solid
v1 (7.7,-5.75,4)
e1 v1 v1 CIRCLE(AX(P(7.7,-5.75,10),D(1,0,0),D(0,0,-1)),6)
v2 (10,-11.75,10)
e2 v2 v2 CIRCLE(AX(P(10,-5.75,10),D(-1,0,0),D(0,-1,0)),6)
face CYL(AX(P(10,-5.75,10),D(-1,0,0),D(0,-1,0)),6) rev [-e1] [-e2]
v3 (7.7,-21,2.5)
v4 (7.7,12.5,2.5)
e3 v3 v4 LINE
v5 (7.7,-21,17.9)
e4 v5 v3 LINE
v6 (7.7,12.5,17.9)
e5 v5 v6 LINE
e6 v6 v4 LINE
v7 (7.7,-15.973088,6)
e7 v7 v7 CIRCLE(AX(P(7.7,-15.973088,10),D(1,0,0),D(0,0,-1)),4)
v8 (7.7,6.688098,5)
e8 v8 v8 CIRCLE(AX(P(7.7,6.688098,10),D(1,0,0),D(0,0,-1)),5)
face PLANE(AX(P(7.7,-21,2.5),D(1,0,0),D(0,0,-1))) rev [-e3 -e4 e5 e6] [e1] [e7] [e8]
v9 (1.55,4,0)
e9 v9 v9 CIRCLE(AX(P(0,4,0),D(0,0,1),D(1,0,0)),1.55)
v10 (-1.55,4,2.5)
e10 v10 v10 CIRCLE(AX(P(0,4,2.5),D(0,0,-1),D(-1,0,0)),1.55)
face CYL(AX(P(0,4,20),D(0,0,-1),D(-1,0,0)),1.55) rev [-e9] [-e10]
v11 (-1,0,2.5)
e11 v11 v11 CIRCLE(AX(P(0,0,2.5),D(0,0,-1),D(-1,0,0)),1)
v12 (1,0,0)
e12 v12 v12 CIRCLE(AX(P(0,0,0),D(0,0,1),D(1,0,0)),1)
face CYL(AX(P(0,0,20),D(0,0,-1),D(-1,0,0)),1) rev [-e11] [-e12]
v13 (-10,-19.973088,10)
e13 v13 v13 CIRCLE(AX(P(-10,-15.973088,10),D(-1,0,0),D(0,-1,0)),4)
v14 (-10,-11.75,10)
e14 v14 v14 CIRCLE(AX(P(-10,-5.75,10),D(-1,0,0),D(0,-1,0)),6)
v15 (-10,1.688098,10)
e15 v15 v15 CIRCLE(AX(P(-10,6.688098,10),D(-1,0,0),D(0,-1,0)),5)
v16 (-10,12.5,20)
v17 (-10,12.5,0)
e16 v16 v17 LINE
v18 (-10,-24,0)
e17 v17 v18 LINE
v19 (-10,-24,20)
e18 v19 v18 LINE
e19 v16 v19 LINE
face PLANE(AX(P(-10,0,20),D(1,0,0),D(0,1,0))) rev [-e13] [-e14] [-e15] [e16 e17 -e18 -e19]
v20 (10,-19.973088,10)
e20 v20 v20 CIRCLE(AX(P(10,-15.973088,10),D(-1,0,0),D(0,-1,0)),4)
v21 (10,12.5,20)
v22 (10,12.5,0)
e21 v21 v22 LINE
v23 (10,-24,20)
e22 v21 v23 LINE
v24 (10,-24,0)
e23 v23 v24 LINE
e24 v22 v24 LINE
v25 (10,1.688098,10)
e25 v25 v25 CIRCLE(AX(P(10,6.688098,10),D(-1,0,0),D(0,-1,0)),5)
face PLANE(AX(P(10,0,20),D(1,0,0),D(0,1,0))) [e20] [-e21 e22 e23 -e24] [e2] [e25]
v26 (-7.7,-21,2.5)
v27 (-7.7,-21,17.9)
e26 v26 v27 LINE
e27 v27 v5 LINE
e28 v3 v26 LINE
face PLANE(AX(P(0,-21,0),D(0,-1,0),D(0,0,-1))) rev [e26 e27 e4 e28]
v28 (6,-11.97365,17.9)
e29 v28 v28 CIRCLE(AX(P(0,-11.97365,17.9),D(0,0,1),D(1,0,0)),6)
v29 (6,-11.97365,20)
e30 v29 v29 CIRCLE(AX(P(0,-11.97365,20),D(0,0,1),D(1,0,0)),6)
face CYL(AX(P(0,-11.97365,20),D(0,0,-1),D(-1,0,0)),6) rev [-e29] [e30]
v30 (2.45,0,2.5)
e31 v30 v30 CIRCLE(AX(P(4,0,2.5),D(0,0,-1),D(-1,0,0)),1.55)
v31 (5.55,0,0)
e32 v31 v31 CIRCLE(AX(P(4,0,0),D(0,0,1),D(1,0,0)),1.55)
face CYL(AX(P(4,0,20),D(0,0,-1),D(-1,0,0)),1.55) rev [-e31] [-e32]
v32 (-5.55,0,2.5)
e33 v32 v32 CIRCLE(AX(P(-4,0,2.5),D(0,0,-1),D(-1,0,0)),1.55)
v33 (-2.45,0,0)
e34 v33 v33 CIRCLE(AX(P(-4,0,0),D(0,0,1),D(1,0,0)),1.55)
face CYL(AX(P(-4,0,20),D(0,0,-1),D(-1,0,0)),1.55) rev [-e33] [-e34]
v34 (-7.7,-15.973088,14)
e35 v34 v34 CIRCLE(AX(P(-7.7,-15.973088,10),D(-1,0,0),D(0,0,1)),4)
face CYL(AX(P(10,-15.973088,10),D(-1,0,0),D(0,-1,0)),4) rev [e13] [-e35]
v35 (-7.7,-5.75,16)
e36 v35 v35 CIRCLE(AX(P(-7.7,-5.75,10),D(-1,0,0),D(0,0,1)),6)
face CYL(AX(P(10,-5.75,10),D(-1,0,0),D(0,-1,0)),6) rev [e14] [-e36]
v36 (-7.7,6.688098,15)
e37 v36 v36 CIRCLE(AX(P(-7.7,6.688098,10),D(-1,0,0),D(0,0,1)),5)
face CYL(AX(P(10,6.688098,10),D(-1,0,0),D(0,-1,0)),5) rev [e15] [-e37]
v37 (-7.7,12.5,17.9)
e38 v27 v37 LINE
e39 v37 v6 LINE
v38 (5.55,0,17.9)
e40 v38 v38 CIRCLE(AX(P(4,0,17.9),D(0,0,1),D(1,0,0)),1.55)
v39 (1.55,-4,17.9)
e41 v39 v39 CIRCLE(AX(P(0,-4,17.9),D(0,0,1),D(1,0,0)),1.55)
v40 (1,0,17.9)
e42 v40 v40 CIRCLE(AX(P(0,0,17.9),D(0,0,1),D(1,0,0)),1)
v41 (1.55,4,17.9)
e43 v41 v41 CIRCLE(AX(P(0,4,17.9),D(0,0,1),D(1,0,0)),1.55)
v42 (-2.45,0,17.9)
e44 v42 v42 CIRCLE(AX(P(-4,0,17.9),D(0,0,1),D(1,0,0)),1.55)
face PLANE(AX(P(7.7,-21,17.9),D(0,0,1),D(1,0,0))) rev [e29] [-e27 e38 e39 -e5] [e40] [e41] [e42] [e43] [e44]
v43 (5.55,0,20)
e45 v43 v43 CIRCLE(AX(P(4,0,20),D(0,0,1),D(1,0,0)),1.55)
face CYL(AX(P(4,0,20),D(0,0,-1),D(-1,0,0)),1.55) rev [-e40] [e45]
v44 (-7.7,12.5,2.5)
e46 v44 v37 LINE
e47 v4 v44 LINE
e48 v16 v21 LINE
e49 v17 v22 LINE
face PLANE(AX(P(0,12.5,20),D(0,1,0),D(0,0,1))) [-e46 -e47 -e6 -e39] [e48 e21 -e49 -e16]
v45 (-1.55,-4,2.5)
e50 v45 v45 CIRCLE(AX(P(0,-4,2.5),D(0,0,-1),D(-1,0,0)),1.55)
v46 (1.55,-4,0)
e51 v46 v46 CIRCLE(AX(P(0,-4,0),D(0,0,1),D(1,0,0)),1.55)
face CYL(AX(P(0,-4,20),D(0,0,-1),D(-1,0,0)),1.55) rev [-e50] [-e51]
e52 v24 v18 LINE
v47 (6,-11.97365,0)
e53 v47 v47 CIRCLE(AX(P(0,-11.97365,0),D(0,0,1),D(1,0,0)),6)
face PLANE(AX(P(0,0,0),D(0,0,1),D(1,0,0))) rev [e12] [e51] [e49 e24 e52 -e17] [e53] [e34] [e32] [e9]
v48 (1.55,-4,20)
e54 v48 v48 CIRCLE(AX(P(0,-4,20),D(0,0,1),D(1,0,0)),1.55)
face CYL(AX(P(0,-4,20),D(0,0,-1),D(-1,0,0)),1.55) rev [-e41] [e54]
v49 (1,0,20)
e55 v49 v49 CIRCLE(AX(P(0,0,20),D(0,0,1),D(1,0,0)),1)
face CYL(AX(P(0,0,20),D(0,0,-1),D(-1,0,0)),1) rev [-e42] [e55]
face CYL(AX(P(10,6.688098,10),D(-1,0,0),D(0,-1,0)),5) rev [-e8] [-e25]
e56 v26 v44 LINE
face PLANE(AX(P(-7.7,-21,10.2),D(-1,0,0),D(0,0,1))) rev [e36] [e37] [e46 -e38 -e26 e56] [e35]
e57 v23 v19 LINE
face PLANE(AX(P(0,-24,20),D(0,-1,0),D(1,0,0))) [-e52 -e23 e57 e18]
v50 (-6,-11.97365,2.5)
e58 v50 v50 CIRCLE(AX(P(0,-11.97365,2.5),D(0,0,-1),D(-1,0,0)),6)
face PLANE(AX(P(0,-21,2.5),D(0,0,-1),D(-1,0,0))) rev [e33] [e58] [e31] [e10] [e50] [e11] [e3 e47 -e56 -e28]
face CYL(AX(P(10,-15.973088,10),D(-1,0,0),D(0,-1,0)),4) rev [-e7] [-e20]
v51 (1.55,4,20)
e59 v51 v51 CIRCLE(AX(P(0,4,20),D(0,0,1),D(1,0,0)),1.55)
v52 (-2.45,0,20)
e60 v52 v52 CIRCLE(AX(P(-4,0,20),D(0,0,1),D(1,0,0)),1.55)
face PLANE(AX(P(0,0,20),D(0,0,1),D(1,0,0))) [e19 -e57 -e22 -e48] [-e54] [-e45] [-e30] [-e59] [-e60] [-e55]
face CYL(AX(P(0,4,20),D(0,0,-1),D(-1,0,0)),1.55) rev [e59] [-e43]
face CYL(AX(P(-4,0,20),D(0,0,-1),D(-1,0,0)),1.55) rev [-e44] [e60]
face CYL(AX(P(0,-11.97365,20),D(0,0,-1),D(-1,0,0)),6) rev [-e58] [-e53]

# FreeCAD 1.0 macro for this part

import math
import FreeCAD as App
import Part
import Sketcher

V = App.Vector
Q = App.Units.Quantity

doc = App.newDocument("Part")
params = doc.addObject("Spreadsheet::Sheet", "Params")
for row, (alias, value) in enumerate([
    ("sketch1_diameter", "12 mm"),
    ("sketch1_diameter2", "2 mm"),
    ("sketch1_diameter3", "3.1 mm"),
    ("sketch1_width", "20 mm"),
    ("sketch1_height", "36.5 mm"),
    ("pad1_length", "20 mm"),
    ("sketch2_width", "15.4 mm"),
    ("pocket1_length", "33.5 mm"),
    ("sketch3_radius", "6 mm"),
    ("sketch3_radius2", "5 mm"),
    ("sketch3_radius3", "4 mm"),
], start=1):
    params.set(f"A{row}", alias)
    params.set(f"B{row}", "=" + value)
    params.setAlias(f"B{row}", alias)

body = doc.addObject("PartDesign::Body", "Body")

sketch1 = body.newObject("Sketcher::SketchObject", "Sketch")
sketch1.AttachmentSupport = (doc.getObject("XY_Plane"), [""])
sketch1.MapMode = "FlatFace"
sketch1.addGeometry([
    Part.LineSegment(V(10, 12.5, 0), V(-10, 12.5, 0)),
    Part.LineSegment(V(-10, 12.5, 0), V(-10, -24, 0)),
    Part.LineSegment(V(-10, -24, 0), V(10, -24, 0)),
    Part.LineSegment(V(10, -24, 0), V(10, 12.5, 0)),
    Part.Circle(V(0, -12, 0), V(0, 0, 1), 6),
    Part.Circle(V(-4, 0, 0), V(0, 0, 1), 1.6),
    Part.Circle(V(0, -4, 0), V(0, 0, 1), 1.6),
    Part.Circle(V(0, 0, 0), V(0, 0, 1), 1),
    Part.Circle(V(0, 4, 0), V(0, 0, 1), 1.6),
    Part.Circle(V(4, 0, 0), V(0, 0, 1), 1.6),
], False)
sketch1.addConstraint([
    Sketcher.Constraint("Coincident", 0, 2, 1, 1),
    Sketcher.Constraint("Coincident", 1, 2, 2, 1),
    Sketcher.Constraint("Coincident", 2, 2, 3, 1),
    Sketcher.Constraint("Coincident", 3, 2, 0, 1),
    Sketcher.Constraint("Horizontal", 0),
    Sketcher.Constraint("Vertical", 1),
    Sketcher.Constraint("Horizontal", 2),
    Sketcher.Constraint("Vertical", 3),
    Sketcher.Constraint("Coincident", 7, 3, -1, 1),
    Sketcher.Constraint("Equal", 5, 6),
    Sketcher.Constraint("Equal", 6, 8),
    Sketcher.Constraint("Equal", 8, 9),
    Sketcher.Constraint("Symmetric", 6, 3, 8, 3, -1, 1),
    Sketcher.Constraint("Symmetric", 5, 3, 9, 3, -1, 1),
    Sketcher.Constraint("PointOnObject", 4, 3, -2),
    Sketcher.Constraint("PointOnObject", 5, 3, -1),
    Sketcher.Constraint("PointOnObject", 6, 3, -2),
    Sketcher.Constraint("Diameter", 4, Q("12 mm")),
    Sketcher.Constraint("Diameter", 7, Q("2 mm")),
    Sketcher.Constraint("Diameter", 5, Q("3.1 mm")),
    Sketcher.Constraint("DistanceX", 0, 2, 0, 1, Q("20 mm")),
    Sketcher.Constraint("DistanceY", 1, 2, 1, 1, Q("36.5 mm")),
    Sketcher.Constraint("DistanceX", 5, 3, -1, 1, Q("4 mm")),
    Sketcher.Constraint("DistanceY", 6, 3, -1, 1, Q("4 mm")),
    Sketcher.Constraint("DistanceX", 0, 2, -1, 1, Q("10 mm")),
    Sketcher.Constraint("DistanceY", 1, 2, -1, 1, Q("24 mm")),
    Sketcher.Constraint("DistanceY", 4, 3, -1, 1, Q("11.97365 mm")),
])
sketch1.setExpression("Constraints[17]", "Params.sketch1_diameter")
sketch1.setExpression("Constraints[18]", "Params.sketch1_diameter2")
sketch1.setExpression("Constraints[19]", "Params.sketch1_diameter3")
sketch1.setExpression("Constraints[20]", "Params.sketch1_width")
sketch1.setExpression("Constraints[21]", "Params.sketch1_height")
pad1 = body.newObject("PartDesign::Pad", "Pad")
pad1.Profile = sketch1
pad1.setExpression("Length", "Params.pad1_length")

sketch2 = body.newObject("Sketcher::SketchObject", "Sketch001")
sketch2.AttachmentSupport = (doc.getObject("XZ_Plane"), [""])
sketch2.MapMode = "FlatFace"
sketch2.AttachmentOffset = App.Placement(V(0, 0, -12.5), App.Rotation())
sketch2.addGeometry([
    Part.LineSegment(V(-8, 2, 0), V(-8, 18, 0)),
    Part.LineSegment(V(-8, 18, 0), V(8, 18, 0)),
    Part.LineSegment(V(8, 18, 0), V(8, 2, 0)),
    Part.LineSegment(V(8, 2, 0), V(-8, 2, 0)),
], False)
sketch2.addConstraint([
    Sketcher.Constraint("Coincident", 0, 2, 1, 1),
    Sketcher.Constraint("Coincident", 1, 2, 2, 1),
    Sketcher.Constraint("Coincident", 2, 2, 3, 1),
    Sketcher.Constraint("Coincident", 3, 2, 0, 1),
    Sketcher.Constraint("Vertical", 0),
    Sketcher.Constraint("Horizontal", 1),
    Sketcher.Constraint("Vertical", 2),
    Sketcher.Constraint("Horizontal", 3),
    Sketcher.Constraint("Equal", 3, 0),
    Sketcher.Constraint("DistanceX", 1, 1, 1, 2, Q("15.4 mm")),
    Sketcher.Constraint("DistanceX", 0, 2, -1, 1, Q("7.7 mm")),
    Sketcher.Constraint("DistanceY", -1, 1, 0, 2, Q("17.9 mm")),
])
sketch2.setExpression("Constraints[9]", "Params.sketch2_width")
pocket1 = body.newObject("PartDesign::Pocket", "Pocket")
pocket1.Profile = sketch2
pocket1.setExpression("Length", "Params.pocket1_length")
pocket1.Reversed = True

sketch3 = body.newObject("Sketcher::SketchObject", "Sketch002")
sketch3.AttachmentSupport = (doc.getObject("YZ_Plane"), [""])
sketch3.MapMode = "FlatFace"
sketch3.AttachmentOffset = App.Placement(V(0, 0, -10), App.Rotation())
sketch3.addGeometry([
    Part.ArcOfCircle(Part.Circle(V(-5.8, 10, 0), V(0, 0, 1), 6), math.radians(0), math.radians(90)),
    Part.ArcOfCircle(Part.Circle(V(-5.8, 10, 0), V(0, 0, 1), 6), math.radians(180), math.radians(360)),
    Part.ArcOfCircle(Part.Circle(V(-5.8, 10, 0), V(0, 0, 1), 6), math.radians(90), math.radians(180)),
    Part.ArcOfCircle(Part.Circle(V(6.7, 10, 0), V(0, 0, 1), 5), math.radians(0), math.radians(90)),
    Part.ArcOfCircle(Part.Circle(V(6.7, 10, 0), V(0, 0, 1), 5), math.radians(180), math.radians(360)),
    Part.ArcOfCircle(Part.Circle(V(6.7, 10, 0), V(0, 0, 1), 5), math.radians(90), math.radians(180)),
    Part.ArcOfCircle(Part.Circle(V(-16, 10, 0), V(0, 0, 1), 4), math.radians(0), math.radians(90)),
    Part.ArcOfCircle(Part.Circle(V(-16, 10, 0), V(0, 0, 1), 4), math.radians(180), math.radians(360)),
    Part.ArcOfCircle(Part.Circle(V(-16, 10, 0), V(0, 0, 1), 4), math.radians(90), math.radians(180)),
], False)
sketch3.addConstraint([
    Sketcher.Constraint("Tangent", 0, 1, 1, 2),
    Sketcher.Constraint("Tangent", 1, 1, 2, 2),
    Sketcher.Constraint("Tangent", 2, 1, 0, 2),
    Sketcher.Constraint("Tangent", 3, 1, 4, 2),
    Sketcher.Constraint("Tangent", 4, 1, 5, 2),
    Sketcher.Constraint("Tangent", 5, 1, 3, 2),
    Sketcher.Constraint("Tangent", 6, 1, 7, 2),
    Sketcher.Constraint("Tangent", 7, 1, 8, 2),
    Sketcher.Constraint("Tangent", 8, 1, 6, 2),
    Sketcher.Constraint("Horizontal", 2, 3, 3, 3),
    Sketcher.Constraint("Horizontal", 5, 3, 6, 3),
    Sketcher.Constraint("Horizontal", 8, 3, 0, 1),
    Sketcher.Constraint("Horizontal", 0, 1, 1, 1),
    Sketcher.Constraint("Horizontal", 1, 1, 3, 1),
    Sketcher.Constraint("Horizontal", 3, 1, 4, 1),
    Sketcher.Constraint("Horizontal", 4, 1, 6, 1),
    Sketcher.Constraint("Horizontal", 6, 1, 7, 1),
    Sketcher.Constraint("Vertical", 1, 3, 2, 1),
    Sketcher.Constraint("Vertical", 4, 3, 5, 1),
    Sketcher.Constraint("Vertical", 7, 3, 8, 1),
    Sketcher.Constraint("Radius", 0, Q("6 mm")),
    Sketcher.Constraint("Radius", 3, Q("5 mm")),
    Sketcher.Constraint("Radius", 6, Q("4 mm")),
    Sketcher.Constraint("DistanceY", -1, 1, 0, 3, Q("10 mm")),
    Sketcher.Constraint("DistanceX", 0, 3, -1, 1, Q("5.75 mm")),
    Sketcher.Constraint("DistanceX", 6, 3, -1, 1, Q("15.973088 mm")),
    Sketcher.Constraint("DistanceX", -1, 1, 3, 3, Q("6.688098 mm")),
])
sketch3.setExpression("Constraints[20]", "Params.sketch3_radius")
sketch3.setExpression("Constraints[21]", "Params.sketch3_radius2")
sketch3.setExpression("Constraints[22]", "Params.sketch3_radius3")
pocket2 = body.newObject("PartDesign::Pocket", "Pocket001")
pocket2.Profile = sketch3
pocket2.Type = "ThroughAll"
pocket2.Reversed = True

doc.recompute()
